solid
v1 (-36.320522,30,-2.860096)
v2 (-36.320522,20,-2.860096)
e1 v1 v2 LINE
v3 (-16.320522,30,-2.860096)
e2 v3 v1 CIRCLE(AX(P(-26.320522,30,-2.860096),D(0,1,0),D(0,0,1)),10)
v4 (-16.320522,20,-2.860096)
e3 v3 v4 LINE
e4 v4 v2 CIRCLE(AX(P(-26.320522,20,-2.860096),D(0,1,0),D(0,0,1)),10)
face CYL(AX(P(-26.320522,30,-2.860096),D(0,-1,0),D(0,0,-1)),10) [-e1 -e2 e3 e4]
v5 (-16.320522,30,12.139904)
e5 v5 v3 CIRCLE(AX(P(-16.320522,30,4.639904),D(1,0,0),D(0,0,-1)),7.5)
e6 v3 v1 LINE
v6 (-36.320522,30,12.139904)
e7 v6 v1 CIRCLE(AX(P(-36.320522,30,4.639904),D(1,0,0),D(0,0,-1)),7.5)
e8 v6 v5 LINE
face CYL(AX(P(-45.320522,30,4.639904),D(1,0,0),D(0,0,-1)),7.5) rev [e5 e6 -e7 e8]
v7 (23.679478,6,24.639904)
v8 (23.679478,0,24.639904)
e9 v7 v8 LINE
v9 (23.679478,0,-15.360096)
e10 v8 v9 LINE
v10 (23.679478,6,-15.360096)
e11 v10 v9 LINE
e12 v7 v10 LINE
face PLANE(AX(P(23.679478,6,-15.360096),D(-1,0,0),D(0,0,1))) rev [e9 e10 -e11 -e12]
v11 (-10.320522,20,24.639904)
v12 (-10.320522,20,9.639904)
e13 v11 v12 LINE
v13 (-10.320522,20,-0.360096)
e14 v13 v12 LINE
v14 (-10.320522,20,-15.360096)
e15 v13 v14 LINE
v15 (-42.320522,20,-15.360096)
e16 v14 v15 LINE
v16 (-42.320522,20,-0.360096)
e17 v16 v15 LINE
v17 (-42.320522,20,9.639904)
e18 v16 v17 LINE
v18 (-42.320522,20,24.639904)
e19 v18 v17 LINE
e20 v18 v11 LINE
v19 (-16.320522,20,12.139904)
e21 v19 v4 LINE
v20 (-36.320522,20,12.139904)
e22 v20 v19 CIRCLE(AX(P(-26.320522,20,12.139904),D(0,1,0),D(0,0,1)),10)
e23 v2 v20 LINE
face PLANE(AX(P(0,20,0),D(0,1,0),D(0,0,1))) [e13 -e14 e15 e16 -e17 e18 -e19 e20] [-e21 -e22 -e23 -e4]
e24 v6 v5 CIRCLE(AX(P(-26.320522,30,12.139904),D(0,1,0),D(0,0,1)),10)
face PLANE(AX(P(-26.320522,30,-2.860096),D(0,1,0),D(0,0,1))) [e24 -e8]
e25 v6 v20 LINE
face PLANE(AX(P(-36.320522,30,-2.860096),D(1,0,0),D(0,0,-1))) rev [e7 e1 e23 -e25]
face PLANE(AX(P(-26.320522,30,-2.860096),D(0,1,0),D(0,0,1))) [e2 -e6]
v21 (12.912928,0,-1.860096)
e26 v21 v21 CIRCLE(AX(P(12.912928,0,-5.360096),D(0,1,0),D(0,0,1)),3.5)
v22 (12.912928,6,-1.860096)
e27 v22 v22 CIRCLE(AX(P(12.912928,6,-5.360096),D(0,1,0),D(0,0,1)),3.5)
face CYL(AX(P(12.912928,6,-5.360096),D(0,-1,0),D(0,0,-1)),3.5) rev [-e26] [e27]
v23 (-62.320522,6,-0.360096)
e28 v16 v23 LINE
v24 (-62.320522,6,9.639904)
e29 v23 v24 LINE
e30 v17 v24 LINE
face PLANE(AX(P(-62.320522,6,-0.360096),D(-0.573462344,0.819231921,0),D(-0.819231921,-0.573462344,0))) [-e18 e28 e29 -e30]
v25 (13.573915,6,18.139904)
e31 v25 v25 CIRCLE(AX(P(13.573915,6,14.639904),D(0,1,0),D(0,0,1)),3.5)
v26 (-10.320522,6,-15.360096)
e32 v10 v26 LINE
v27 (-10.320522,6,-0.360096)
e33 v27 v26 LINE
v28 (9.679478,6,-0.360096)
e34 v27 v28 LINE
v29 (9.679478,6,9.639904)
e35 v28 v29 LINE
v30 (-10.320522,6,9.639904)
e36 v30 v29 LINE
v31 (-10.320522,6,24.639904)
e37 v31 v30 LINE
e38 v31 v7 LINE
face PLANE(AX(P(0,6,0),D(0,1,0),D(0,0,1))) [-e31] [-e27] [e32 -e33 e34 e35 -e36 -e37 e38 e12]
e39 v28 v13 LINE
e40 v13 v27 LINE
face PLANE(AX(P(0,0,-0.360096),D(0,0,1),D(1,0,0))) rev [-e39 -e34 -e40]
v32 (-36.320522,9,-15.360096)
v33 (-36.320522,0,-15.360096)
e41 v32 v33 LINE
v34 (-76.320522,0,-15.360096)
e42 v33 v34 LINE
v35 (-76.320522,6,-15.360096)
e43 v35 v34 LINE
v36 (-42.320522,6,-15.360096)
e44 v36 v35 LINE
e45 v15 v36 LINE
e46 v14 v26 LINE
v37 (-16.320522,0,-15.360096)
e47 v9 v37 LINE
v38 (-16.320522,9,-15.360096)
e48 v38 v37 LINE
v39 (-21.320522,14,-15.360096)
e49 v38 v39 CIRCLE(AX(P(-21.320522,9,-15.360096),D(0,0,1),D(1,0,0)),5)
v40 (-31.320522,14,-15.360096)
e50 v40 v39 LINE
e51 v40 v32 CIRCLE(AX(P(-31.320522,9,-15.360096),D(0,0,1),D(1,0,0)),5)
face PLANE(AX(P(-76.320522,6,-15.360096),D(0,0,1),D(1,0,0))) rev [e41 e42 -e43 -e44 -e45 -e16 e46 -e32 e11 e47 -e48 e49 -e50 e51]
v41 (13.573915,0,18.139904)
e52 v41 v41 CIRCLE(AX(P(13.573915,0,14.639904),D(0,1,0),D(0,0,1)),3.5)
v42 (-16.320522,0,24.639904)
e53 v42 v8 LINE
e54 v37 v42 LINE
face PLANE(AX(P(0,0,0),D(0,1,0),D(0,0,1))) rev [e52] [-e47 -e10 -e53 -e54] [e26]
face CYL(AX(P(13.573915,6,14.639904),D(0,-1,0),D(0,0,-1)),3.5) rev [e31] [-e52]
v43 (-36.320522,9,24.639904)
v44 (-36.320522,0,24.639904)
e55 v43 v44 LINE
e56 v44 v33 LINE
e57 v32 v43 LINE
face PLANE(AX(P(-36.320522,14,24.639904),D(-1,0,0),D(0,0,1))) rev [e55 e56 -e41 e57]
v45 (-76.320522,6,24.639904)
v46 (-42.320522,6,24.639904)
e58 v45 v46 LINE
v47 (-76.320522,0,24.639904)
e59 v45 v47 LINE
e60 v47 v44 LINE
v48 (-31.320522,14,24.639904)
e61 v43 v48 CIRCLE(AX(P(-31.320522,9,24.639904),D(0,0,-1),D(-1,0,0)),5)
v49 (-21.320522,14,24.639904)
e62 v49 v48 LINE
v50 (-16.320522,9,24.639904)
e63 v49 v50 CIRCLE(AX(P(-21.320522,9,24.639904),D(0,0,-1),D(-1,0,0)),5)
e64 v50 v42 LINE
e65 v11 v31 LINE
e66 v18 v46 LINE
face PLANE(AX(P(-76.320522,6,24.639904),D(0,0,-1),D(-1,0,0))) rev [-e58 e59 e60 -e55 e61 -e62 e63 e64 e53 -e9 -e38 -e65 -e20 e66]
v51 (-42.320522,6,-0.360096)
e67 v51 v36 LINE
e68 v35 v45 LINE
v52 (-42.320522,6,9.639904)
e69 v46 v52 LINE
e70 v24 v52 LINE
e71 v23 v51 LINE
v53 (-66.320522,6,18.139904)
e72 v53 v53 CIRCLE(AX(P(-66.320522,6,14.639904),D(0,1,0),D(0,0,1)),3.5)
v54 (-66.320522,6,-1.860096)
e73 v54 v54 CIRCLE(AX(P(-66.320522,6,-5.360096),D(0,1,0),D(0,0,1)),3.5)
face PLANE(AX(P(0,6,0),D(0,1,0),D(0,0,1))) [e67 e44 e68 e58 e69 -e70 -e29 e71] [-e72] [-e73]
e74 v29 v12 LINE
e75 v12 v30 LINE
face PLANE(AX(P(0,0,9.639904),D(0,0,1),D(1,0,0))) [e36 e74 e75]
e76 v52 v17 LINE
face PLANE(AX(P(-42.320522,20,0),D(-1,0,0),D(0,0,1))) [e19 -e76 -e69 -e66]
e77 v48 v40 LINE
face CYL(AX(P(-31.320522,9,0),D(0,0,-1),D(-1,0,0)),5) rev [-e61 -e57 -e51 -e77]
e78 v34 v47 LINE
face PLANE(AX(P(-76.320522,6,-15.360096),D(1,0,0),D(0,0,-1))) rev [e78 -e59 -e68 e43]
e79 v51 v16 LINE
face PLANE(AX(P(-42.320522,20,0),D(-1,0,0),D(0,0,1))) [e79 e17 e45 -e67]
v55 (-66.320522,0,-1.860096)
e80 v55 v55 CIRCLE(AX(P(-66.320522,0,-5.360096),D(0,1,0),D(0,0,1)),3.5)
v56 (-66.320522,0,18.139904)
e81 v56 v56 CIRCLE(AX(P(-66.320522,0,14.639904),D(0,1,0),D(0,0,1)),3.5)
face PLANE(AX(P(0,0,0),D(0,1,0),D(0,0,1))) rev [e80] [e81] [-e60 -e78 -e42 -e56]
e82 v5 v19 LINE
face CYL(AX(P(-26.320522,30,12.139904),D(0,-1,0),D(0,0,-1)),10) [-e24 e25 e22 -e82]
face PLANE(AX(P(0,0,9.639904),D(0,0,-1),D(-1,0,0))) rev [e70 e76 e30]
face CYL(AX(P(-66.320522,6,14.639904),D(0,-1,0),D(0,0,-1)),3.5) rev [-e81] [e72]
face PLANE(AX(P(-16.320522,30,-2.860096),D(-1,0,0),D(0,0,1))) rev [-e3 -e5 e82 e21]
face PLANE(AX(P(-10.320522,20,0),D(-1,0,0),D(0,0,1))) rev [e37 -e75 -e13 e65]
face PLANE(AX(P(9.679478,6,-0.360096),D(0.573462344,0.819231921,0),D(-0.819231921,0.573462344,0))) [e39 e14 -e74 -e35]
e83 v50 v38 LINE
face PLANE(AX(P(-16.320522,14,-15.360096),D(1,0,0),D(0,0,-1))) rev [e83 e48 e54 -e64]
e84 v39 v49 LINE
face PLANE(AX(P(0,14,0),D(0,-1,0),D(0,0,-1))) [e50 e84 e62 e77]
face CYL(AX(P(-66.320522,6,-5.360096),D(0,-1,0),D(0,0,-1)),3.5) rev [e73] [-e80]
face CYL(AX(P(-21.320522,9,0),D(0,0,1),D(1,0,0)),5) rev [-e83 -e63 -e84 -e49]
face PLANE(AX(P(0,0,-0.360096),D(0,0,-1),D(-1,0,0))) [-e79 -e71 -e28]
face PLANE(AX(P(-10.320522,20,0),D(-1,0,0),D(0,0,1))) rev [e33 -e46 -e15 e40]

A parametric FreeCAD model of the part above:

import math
import FreeCAD as App
import Part
import Sketcher
Q = App.Units.Quantity


def edges_at(feature, points):
    """Names of the edges that pass closest to the given points."""
    edges = feature.Shape.Edges
    near = lambda p: min(range(len(edges)), key=lambda i: edges[i].distToShape(Part.Vertex(*p))[0])
    return sorted({f"Edge{near(p) + 1}" for p in points})

doc = App.newDocument("Part")
body = doc.addObject("PartDesign::Body", "Body")

sketch1 = body.newObject("Sketcher::SketchObject", "Sketch")
sketch1.AttachmentSupport = (doc.getObject("XZ_Plane"), [""])
sketch1.MapMode = "FlatFace"
sketch1.addGeometry([
    Part.LineSegment(App.Vector(-76.3, -15.4, 0), App.Vector(-76.3, 24.6, 0)),
    Part.LineSegment(App.Vector(-76.3, 24.6, 0), App.Vector(23.7, 24.6, 0)),
    Part.LineSegment(App.Vector(23.7, 24.6, 0), App.Vector(23.7, -15.4, 0)),
    Part.LineSegment(App.Vector(23.7, -15.4, 0), App.Vector(-76.3, -15.4, 0)),
    Part.Circle(App.Vector(-66.3, 14.6, 0), App.Vector(0, 0, 1), 3.5),
    Part.Circle(App.Vector(13.6, 14.6, 0), App.Vector(0, 0, 1), 3.5),
    Part.Circle(App.Vector(-66.3, -5.4, 0), App.Vector(0, 0, 1), 3.5),
    Part.Circle(App.Vector(12.9, -5.4, 0), App.Vector(0, 0, 1), 3.5),
], False)
sketch1.addConstraint([
    Sketcher.Constraint("Coincident", 0, 2, 1, 1),
    Sketcher.Constraint("Coincident", 1, 2, 2, 1),
    Sketcher.Constraint("Coincident", 2, 2, 3, 1),
    Sketcher.Constraint("Coincident", 3, 2, 0, 1),
    Sketcher.Constraint("Vertical", 0),
    Sketcher.Constraint("Horizontal", 1),
    Sketcher.Constraint("Vertical", 2),
    Sketcher.Constraint("Horizontal", 3),
    Sketcher.Constraint("Equal", 4, 5),
    Sketcher.Constraint("Equal", 5, 6),
    Sketcher.Constraint("Equal", 6, 7),
    Sketcher.Constraint("Horizontal", 4, 3, 5, 3),
    Sketcher.Constraint("Horizontal", 6, 3, 7, 3),
    Sketcher.Constraint("Vertical", 4, 3, 6, 3),
    Sketcher.Constraint("Diameter", 4, Q("7 mm")),
    Sketcher.Constraint("DistanceX", 1, 1, 1, 2, Q("100 mm")),
    Sketcher.Constraint("DistanceY", 0, 1, 0, 2, Q("40 mm")),
    Sketcher.Constraint("DistanceY", 6, 3, 4, 3, Q("20 mm")),
    Sketcher.Constraint("DistanceX", 0, 2, 4, 3, Q("10 mm")),
    Sketcher.Constraint("DistanceY", 4, 3, 0, 2, Q("10 mm")),
    Sketcher.Constraint("DistanceX", 6, 3, 7, 3, Q("79.23345 mm")),
    Sketcher.Constraint("DistanceX", 4, 3, -1, 1, Q("66.320522 mm")),
    Sketcher.Constraint("DistanceY", -1, 1, 4, 3, Q("14.639904 mm")),
    Sketcher.Constraint("DistanceX", -1, 1, 5, 3, Q("13.573915 mm")),
])
pad1 = body.newObject("PartDesign::Pad", "Pad")
pad1.Profile = sketch1
pad1.Length = 6
pad1.Reversed = True

sketch2 = body.newObject("Sketcher::SketchObject", "Sketch001")
sketch2.AttachmentSupport = (doc.getObject("XZ_Plane"), [""])
sketch2.MapMode = "FlatFace"
sketch2.AttachmentOffset = App.Placement(App.Vector(0, 0, -6), App.Rotation())
sketch2.addGeometry([
    Part.LineSegment(App.Vector(-42, -15, 0), App.Vector(-42, 25, 0)),
    Part.LineSegment(App.Vector(-42, 25, 0), App.Vector(-10, 25, 0)),
    Part.LineSegment(App.Vector(-10, 25, 0), App.Vector(-10, -15, 0)),
    Part.LineSegment(App.Vector(-10, -15, 0), App.Vector(-42, -15, 0)),
], False)
sketch2.addConstraint([
    Sketcher.Constraint("Coincident", 0, 2, 1, 1),
    Sketcher.Constraint("Coincident", 1, 2, 2, 1),
    Sketcher.Constraint("Coincident", 2, 2, 3, 1),
    Sketcher.Constraint("Coincident", 3, 2, 0, 1),
    Sketcher.Constraint("Vertical", 0),
    Sketcher.Constraint("Horizontal", 1),
    Sketcher.Constraint("Vertical", 2),
    Sketcher.Constraint("Horizontal", 3),
    Sketcher.Constraint("DistanceX", 1, 1, 1, 2, Q("32 mm")),
    Sketcher.Constraint("DistanceY", 0, 1, 0, 2, Q("40 mm")),
    Sketcher.Constraint("DistanceX", 0, 2, -1, 1, Q("42.320522 mm")),
    Sketcher.Constraint("DistanceY", -1, 1, 0, 2, Q("24.639904 mm")),
])
pad2 = body.newObject("PartDesign::Pad", "Pad001")
pad2.Profile = sketch2
pad2.Length = 14
pad2.Reversed = True

sketch3 = body.newObject("Sketcher::SketchObject", "Sketch002")
sketch3.AttachmentSupport = (doc.getObject("XZ_Plane"), [""])
sketch3.MapMode = "FlatFace"
sketch3.addGeometry([
    Part.LineSegment(App.Vector(-36, 25, 0), App.Vector(-36, -15, 0)),
    Part.LineSegment(App.Vector(-36, -15, 0), App.Vector(-16, -15, 0)),
    Part.LineSegment(App.Vector(-16, -15, 0), App.Vector(-16, 25, 0)),
    Part.LineSegment(App.Vector(-16, 25, 0), App.Vector(-36, 25, 0)),
], False)
sketch3.addConstraint([
    Sketcher.Constraint("Coincident", 0, 2, 1, 1),
    Sketcher.Constraint("Coincident", 1, 2, 2, 1),
    Sketcher.Constraint("Coincident", 2, 2, 3, 1),
    Sketcher.Constraint("Coincident", 3, 2, 0, 1),
    Sketcher.Constraint("Vertical", 0),
    Sketcher.Constraint("Horizontal", 1),
    Sketcher.Constraint("Vertical", 2),
    Sketcher.Constraint("Horizontal", 3),
    Sketcher.Constraint("DistanceX", 1, 1, 1, 2, Q("20 mm")),
    Sketcher.Constraint("DistanceY", 0, 2, 0, 1, Q("40 mm")),
    Sketcher.Constraint("DistanceX", 0, 2, -1, 1, Q("36.320522 mm")),
    Sketcher.Constraint("DistanceY", 0, 2, -1, 1, Q("15.360096 mm")),
])
pocket1 = body.newObject("PartDesign::Pocket", "Pocket")
pocket1.Profile = sketch3
pocket1.Length = 14
doc.recompute()

fillet = body.newObject("PartDesign::Fillet", "Fillet")
fillet.Base = (pocket1, edges_at(pocket1, [(-36.321, 14, 4.64)]))
fillet.Radius = 5
doc.recompute()

fillet2 = body.newObject("PartDesign::Fillet", "Fillet001")
fillet2.Base = (fillet, edges_at(fillet, [(-16.321, 14, 4.64)]))
fillet2.Radius = 5

sketch4 = body.newObject("Sketcher::SketchObject", "Sketch003")
sketch4.AttachmentSupport = (doc.getObject("XY_Plane"), [""])
sketch4.MapMode = "FlatFace"
sketch4.AttachmentOffset = App.Placement(App.Vector(0, 0, 9.639904), App.Rotation())
sketch4.addGeometry([
    Part.LineSegment(App.Vector(-10, 6, 0), App.Vector(10, 6, 0)),
    Part.LineSegment(App.Vector(10, 6, 0), App.Vector(-10, 20, 0)),
    Part.LineSegment(App.Vector(-10, 20, 0), App.Vector(-10, 6, 0)),
    Part.LineSegment(App.Vector(-62, 6, 0), App.Vector(-42, 6, 0)),
    Part.LineSegment(App.Vector(-42, 6, 0), App.Vector(-42, 20, 0)),
    Part.LineSegment(App.Vector(-42, 20, 0), App.Vector(-62, 6, 0)),
], False)
sketch4.addConstraint([
    Sketcher.Constraint("Coincident", 0, 2, 1, 1),
    Sketcher.Constraint("Coincident", 1, 2, 2, 1),
    Sketcher.Constraint("Coincident", 2, 2, 0, 1),
    Sketcher.Constraint("Coincident", 3, 2, 4, 1),
    Sketcher.Constraint("Coincident", 4, 2, 5, 1),
    Sketcher.Constraint("Coincident", 5, 2, 3, 1),
    Sketcher.Constraint("Horizontal", 0),
    Sketcher.Constraint("Vertical", 2),
    Sketcher.Constraint("Horizontal", 3),
    Sketcher.Constraint("Vertical", 4),
    Sketcher.Constraint("Horizontal", 2, 2, 3, 2),
    Sketcher.Constraint("Horizontal", 1, 2, 4, 2),
    Sketcher.Constraint("Equal", 0, 3),
    Sketcher.Constraint("DistanceX", 0, 1, 0, 2, Q("20 mm")),
    Sketcher.Constraint("DistanceY", 2, 2, 2, 1, Q("14 mm")),
    Sketcher.Constraint("DistanceY", -1, 1, 0, 2, Q("6 mm")),
    Sketcher.Constraint("DistanceX", 3, 2, 2, 2, Q("32 mm")),
    Sketcher.Constraint("DistanceX", -1, 1, 0, 2, Q("9.679478 mm")),
])
pad3 = body.newObject("PartDesign::Pad", "Pad002")
pad3.Profile = sketch4
pad3.Length = 10
pad3.Reversed = True

sketch5 = body.newObject("Sketcher::SketchObject", "Sketch004")
sketch5.AttachmentSupport = (doc.getObject("XZ_Plane"), [""])
sketch5.MapMode = "FlatFace"
sketch5.AttachmentOffset = App.Placement(App.Vector(0, 0, -20), App.Rotation())
sketch5.addGeometry([
    Part.LineSegment(App.Vector(-16, 12, 0), App.Vector(-16, -3, 0)),
    Part.ArcOfCircle(Part.Circle(App.Vector(-26, -3, 0), App.Vector(0, 0, 1), 10), math.radians(180), math.radians(360)),
    Part.LineSegment(App.Vector(-36, -3, 0), App.Vector(-36, 12, 0)),
    Part.ArcOfCircle(Part.Circle(App.Vector(-26, 12, 0), App.Vector(0, 0, 1), 10), math.radians(0), math.radians(180)),
], False)
sketch5.addConstraint([
    Sketcher.Constraint("Tangent", 0, 2, 1, 2),
    Sketcher.Constraint("Tangent", 1, 1, 2, 1),
    Sketcher.Constraint("Tangent", 2, 2, 3, 2),
    Sketcher.Constraint("Tangent", 3, 1, 0, 1),
    Sketcher.Constraint("Vertical", 0),
    Sketcher.Constraint("Vertical", 2),
    Sketcher.Constraint("Radius", 1, Q("10 mm")),
    Sketcher.Constraint("DistanceY", 0, 2, 0, 1, Q("15 mm")),
    Sketcher.Constraint("DistanceX", 1, 3, -1, 1, Q("26.320522 mm")),
    Sketcher.Constraint("DistanceY", 1, 3, -1, 1, Q("2.860096 mm")),
])
pad4 = body.newObject("PartDesign::Pad", "Pad003")
pad4.Profile = sketch5
pad4.Length = 10
pad4.Reversed = True

sketch6 = body.newObject("Sketcher::SketchObject", "Sketch005")
sketch6.AttachmentSupport = (doc.getObject("YZ_Plane"), [""])
sketch6.MapMode = "FlatFace"
sketch6.AttachmentOffset = App.Placement(App.Vector(0, 0, -16.320522), App.Rotation())
sketch6.addGeometry(Part.Circle(App.Vector(30, 5, 0), App.Vector(0, 0, 1), 8), False)
sketch6.addConstraint([
    Sketcher.Constraint("Diameter", 0, Q("15 mm")),
    Sketcher.Constraint("DistanceX", -1, 1, 0, 3, Q("30 mm")),
    Sketcher.Constraint("DistanceY", -1, 1, 0, 3, Q("4.639904 mm")),
])
pocket2 = body.newObject("PartDesign::Pocket", "Pocket001")
pocket2.Profile = sketch6
pocket2.Length = 29

doc.recompute()
